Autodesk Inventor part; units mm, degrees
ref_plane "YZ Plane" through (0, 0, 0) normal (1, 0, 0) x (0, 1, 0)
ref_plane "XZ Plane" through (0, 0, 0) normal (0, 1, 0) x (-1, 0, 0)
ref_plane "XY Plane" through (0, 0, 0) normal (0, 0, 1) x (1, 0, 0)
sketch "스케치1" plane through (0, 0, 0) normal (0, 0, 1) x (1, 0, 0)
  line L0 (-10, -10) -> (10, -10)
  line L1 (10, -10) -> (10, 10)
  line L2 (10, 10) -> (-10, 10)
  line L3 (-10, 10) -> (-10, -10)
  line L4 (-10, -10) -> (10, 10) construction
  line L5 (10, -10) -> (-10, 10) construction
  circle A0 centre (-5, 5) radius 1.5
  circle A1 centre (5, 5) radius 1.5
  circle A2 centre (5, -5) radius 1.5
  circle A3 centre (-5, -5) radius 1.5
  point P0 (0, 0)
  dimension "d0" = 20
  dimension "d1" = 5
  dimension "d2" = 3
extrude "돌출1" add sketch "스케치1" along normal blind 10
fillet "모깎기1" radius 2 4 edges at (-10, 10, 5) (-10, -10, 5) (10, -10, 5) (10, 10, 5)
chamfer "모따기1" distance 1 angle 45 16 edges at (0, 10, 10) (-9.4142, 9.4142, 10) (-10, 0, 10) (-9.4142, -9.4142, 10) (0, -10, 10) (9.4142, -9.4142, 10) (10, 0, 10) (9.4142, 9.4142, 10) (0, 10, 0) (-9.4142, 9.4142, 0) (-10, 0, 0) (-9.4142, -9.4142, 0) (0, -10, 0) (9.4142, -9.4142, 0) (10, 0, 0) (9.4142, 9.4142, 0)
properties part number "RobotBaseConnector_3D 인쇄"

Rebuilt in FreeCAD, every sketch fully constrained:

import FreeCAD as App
import Part
import Sketcher

V = App.Vector
Q = App.Units.Quantity


def edges_at(feature, points):
    """Names of the edges that pass closest to the given points."""
    edges = feature.Shape.Edges
    near = lambda p: min(range(len(edges)), key=lambda i: edges[i].distToShape(Part.Vertex(*p))[0])
    return sorted({f"Edge{near(p) + 1}" for p in points})

doc = App.newDocument("Part")
body = doc.addObject("PartDesign::Body", "Body")

sketch1 = body.newObject("Sketcher::SketchObject", "Sketch")
sketch1.AttachmentSupport = (doc.getObject("XY_Plane"), [""])
sketch1.MapMode = "FlatFace"
sketch1.addGeometry([
    Part.LineSegment(V(-10, 10, 0), V(-10, -10, 0)),
    Part.LineSegment(V(-10, -10, 0), V(10, -10, 0)),
    Part.LineSegment(V(10, -10, 0), V(10, 10, 0)),
    Part.LineSegment(V(10, 10, 0), V(-10, 10, 0)),
    Part.Circle(V(-5, -5, 0), V(0, 0, 1), 1.5),
    Part.Circle(V(5, -5, 0), V(0, 0, 1), 1.5),
    Part.Circle(V(-5, 5, 0), V(0, 0, 1), 1.5),
    Part.Circle(V(5, 5, 0), V(0, 0, 1), 1.5),
], False)
sketch1.addConstraint([
    Sketcher.Constraint("Coincident", 0, 2, 1, 1),
    Sketcher.Constraint("Coincident", 1, 2, 2, 1),
    Sketcher.Constraint("Coincident", 2, 2, 3, 1),
    Sketcher.Constraint("Coincident", 3, 2, 0, 1),
    Sketcher.Constraint("Vertical", 0),
    Sketcher.Constraint("Horizontal", 1),
    Sketcher.Constraint("Vertical", 2),
    Sketcher.Constraint("Horizontal", 3),
    Sketcher.Constraint("Equal", 4, 5),
    Sketcher.Constraint("Equal", 5, 6),
    Sketcher.Constraint("Equal", 6, 7),
    Sketcher.Constraint("Symmetric", 5, 3, 6, 3, -1, 1),
    Sketcher.Constraint("Symmetric", 4, 3, 7, 3, -1, 1),
    Sketcher.Constraint("Symmetric", 0, 2, 2, 2, -1, 1),
    Sketcher.Constraint("Symmetric", 4, 3, 5, 3, -2),
    Sketcher.Constraint("Equal", 3, 0),
    Sketcher.Constraint("Diameter", 4, Q("3 mm")),
    Sketcher.Constraint("DistanceX", 1, 1, 1, 2, Q("20 mm")),
    Sketcher.Constraint("DistanceX", 4, 3, -1, 1, Q("5 mm")),
    Sketcher.Constraint("DistanceY", 4, 3, -1, 1, Q("5 mm")),
])
pad1 = body.newObject("PartDesign::Pad", "Pad")
pad1.Profile = sketch1
pad1.Length = 10
doc.recompute()

fillet = body.newObject("PartDesign::Fillet", "Fillet")
fillet.Base = (pad1, edges_at(pad1, [
    (-10, 10, 5),
    (-10, -10, 5),
    (10, -10, 5),
    (10, 10, 5),
]))
fillet.Radius = 2
doc.recompute()

chamfer = body.newObject("PartDesign::Chamfer", "Chamfer")
chamfer.Base = (fillet, edges_at(fillet, [
    (0, 10, 10),
    (-9.414, 9.414, 10),
    (-10, 0, 10),
    (-9.414, -9.414, 10),
    (0, -10, 10),
    (9.414, -9.414, 10),
    (10, 0, 10),
    (9.414, 9.414, 10),
    (0, 10, 0),
    (-9.414, 9.414, 0),
    (-10, 0, 0),
    (-9.414, -9.414, 0),
    (0, -10, 0),
    (9.414, -9.414, 0),
    (10, 0, 0),
    (9.414, 9.414, 0),
]))
chamfer.Size = 1

doc.recompute()
